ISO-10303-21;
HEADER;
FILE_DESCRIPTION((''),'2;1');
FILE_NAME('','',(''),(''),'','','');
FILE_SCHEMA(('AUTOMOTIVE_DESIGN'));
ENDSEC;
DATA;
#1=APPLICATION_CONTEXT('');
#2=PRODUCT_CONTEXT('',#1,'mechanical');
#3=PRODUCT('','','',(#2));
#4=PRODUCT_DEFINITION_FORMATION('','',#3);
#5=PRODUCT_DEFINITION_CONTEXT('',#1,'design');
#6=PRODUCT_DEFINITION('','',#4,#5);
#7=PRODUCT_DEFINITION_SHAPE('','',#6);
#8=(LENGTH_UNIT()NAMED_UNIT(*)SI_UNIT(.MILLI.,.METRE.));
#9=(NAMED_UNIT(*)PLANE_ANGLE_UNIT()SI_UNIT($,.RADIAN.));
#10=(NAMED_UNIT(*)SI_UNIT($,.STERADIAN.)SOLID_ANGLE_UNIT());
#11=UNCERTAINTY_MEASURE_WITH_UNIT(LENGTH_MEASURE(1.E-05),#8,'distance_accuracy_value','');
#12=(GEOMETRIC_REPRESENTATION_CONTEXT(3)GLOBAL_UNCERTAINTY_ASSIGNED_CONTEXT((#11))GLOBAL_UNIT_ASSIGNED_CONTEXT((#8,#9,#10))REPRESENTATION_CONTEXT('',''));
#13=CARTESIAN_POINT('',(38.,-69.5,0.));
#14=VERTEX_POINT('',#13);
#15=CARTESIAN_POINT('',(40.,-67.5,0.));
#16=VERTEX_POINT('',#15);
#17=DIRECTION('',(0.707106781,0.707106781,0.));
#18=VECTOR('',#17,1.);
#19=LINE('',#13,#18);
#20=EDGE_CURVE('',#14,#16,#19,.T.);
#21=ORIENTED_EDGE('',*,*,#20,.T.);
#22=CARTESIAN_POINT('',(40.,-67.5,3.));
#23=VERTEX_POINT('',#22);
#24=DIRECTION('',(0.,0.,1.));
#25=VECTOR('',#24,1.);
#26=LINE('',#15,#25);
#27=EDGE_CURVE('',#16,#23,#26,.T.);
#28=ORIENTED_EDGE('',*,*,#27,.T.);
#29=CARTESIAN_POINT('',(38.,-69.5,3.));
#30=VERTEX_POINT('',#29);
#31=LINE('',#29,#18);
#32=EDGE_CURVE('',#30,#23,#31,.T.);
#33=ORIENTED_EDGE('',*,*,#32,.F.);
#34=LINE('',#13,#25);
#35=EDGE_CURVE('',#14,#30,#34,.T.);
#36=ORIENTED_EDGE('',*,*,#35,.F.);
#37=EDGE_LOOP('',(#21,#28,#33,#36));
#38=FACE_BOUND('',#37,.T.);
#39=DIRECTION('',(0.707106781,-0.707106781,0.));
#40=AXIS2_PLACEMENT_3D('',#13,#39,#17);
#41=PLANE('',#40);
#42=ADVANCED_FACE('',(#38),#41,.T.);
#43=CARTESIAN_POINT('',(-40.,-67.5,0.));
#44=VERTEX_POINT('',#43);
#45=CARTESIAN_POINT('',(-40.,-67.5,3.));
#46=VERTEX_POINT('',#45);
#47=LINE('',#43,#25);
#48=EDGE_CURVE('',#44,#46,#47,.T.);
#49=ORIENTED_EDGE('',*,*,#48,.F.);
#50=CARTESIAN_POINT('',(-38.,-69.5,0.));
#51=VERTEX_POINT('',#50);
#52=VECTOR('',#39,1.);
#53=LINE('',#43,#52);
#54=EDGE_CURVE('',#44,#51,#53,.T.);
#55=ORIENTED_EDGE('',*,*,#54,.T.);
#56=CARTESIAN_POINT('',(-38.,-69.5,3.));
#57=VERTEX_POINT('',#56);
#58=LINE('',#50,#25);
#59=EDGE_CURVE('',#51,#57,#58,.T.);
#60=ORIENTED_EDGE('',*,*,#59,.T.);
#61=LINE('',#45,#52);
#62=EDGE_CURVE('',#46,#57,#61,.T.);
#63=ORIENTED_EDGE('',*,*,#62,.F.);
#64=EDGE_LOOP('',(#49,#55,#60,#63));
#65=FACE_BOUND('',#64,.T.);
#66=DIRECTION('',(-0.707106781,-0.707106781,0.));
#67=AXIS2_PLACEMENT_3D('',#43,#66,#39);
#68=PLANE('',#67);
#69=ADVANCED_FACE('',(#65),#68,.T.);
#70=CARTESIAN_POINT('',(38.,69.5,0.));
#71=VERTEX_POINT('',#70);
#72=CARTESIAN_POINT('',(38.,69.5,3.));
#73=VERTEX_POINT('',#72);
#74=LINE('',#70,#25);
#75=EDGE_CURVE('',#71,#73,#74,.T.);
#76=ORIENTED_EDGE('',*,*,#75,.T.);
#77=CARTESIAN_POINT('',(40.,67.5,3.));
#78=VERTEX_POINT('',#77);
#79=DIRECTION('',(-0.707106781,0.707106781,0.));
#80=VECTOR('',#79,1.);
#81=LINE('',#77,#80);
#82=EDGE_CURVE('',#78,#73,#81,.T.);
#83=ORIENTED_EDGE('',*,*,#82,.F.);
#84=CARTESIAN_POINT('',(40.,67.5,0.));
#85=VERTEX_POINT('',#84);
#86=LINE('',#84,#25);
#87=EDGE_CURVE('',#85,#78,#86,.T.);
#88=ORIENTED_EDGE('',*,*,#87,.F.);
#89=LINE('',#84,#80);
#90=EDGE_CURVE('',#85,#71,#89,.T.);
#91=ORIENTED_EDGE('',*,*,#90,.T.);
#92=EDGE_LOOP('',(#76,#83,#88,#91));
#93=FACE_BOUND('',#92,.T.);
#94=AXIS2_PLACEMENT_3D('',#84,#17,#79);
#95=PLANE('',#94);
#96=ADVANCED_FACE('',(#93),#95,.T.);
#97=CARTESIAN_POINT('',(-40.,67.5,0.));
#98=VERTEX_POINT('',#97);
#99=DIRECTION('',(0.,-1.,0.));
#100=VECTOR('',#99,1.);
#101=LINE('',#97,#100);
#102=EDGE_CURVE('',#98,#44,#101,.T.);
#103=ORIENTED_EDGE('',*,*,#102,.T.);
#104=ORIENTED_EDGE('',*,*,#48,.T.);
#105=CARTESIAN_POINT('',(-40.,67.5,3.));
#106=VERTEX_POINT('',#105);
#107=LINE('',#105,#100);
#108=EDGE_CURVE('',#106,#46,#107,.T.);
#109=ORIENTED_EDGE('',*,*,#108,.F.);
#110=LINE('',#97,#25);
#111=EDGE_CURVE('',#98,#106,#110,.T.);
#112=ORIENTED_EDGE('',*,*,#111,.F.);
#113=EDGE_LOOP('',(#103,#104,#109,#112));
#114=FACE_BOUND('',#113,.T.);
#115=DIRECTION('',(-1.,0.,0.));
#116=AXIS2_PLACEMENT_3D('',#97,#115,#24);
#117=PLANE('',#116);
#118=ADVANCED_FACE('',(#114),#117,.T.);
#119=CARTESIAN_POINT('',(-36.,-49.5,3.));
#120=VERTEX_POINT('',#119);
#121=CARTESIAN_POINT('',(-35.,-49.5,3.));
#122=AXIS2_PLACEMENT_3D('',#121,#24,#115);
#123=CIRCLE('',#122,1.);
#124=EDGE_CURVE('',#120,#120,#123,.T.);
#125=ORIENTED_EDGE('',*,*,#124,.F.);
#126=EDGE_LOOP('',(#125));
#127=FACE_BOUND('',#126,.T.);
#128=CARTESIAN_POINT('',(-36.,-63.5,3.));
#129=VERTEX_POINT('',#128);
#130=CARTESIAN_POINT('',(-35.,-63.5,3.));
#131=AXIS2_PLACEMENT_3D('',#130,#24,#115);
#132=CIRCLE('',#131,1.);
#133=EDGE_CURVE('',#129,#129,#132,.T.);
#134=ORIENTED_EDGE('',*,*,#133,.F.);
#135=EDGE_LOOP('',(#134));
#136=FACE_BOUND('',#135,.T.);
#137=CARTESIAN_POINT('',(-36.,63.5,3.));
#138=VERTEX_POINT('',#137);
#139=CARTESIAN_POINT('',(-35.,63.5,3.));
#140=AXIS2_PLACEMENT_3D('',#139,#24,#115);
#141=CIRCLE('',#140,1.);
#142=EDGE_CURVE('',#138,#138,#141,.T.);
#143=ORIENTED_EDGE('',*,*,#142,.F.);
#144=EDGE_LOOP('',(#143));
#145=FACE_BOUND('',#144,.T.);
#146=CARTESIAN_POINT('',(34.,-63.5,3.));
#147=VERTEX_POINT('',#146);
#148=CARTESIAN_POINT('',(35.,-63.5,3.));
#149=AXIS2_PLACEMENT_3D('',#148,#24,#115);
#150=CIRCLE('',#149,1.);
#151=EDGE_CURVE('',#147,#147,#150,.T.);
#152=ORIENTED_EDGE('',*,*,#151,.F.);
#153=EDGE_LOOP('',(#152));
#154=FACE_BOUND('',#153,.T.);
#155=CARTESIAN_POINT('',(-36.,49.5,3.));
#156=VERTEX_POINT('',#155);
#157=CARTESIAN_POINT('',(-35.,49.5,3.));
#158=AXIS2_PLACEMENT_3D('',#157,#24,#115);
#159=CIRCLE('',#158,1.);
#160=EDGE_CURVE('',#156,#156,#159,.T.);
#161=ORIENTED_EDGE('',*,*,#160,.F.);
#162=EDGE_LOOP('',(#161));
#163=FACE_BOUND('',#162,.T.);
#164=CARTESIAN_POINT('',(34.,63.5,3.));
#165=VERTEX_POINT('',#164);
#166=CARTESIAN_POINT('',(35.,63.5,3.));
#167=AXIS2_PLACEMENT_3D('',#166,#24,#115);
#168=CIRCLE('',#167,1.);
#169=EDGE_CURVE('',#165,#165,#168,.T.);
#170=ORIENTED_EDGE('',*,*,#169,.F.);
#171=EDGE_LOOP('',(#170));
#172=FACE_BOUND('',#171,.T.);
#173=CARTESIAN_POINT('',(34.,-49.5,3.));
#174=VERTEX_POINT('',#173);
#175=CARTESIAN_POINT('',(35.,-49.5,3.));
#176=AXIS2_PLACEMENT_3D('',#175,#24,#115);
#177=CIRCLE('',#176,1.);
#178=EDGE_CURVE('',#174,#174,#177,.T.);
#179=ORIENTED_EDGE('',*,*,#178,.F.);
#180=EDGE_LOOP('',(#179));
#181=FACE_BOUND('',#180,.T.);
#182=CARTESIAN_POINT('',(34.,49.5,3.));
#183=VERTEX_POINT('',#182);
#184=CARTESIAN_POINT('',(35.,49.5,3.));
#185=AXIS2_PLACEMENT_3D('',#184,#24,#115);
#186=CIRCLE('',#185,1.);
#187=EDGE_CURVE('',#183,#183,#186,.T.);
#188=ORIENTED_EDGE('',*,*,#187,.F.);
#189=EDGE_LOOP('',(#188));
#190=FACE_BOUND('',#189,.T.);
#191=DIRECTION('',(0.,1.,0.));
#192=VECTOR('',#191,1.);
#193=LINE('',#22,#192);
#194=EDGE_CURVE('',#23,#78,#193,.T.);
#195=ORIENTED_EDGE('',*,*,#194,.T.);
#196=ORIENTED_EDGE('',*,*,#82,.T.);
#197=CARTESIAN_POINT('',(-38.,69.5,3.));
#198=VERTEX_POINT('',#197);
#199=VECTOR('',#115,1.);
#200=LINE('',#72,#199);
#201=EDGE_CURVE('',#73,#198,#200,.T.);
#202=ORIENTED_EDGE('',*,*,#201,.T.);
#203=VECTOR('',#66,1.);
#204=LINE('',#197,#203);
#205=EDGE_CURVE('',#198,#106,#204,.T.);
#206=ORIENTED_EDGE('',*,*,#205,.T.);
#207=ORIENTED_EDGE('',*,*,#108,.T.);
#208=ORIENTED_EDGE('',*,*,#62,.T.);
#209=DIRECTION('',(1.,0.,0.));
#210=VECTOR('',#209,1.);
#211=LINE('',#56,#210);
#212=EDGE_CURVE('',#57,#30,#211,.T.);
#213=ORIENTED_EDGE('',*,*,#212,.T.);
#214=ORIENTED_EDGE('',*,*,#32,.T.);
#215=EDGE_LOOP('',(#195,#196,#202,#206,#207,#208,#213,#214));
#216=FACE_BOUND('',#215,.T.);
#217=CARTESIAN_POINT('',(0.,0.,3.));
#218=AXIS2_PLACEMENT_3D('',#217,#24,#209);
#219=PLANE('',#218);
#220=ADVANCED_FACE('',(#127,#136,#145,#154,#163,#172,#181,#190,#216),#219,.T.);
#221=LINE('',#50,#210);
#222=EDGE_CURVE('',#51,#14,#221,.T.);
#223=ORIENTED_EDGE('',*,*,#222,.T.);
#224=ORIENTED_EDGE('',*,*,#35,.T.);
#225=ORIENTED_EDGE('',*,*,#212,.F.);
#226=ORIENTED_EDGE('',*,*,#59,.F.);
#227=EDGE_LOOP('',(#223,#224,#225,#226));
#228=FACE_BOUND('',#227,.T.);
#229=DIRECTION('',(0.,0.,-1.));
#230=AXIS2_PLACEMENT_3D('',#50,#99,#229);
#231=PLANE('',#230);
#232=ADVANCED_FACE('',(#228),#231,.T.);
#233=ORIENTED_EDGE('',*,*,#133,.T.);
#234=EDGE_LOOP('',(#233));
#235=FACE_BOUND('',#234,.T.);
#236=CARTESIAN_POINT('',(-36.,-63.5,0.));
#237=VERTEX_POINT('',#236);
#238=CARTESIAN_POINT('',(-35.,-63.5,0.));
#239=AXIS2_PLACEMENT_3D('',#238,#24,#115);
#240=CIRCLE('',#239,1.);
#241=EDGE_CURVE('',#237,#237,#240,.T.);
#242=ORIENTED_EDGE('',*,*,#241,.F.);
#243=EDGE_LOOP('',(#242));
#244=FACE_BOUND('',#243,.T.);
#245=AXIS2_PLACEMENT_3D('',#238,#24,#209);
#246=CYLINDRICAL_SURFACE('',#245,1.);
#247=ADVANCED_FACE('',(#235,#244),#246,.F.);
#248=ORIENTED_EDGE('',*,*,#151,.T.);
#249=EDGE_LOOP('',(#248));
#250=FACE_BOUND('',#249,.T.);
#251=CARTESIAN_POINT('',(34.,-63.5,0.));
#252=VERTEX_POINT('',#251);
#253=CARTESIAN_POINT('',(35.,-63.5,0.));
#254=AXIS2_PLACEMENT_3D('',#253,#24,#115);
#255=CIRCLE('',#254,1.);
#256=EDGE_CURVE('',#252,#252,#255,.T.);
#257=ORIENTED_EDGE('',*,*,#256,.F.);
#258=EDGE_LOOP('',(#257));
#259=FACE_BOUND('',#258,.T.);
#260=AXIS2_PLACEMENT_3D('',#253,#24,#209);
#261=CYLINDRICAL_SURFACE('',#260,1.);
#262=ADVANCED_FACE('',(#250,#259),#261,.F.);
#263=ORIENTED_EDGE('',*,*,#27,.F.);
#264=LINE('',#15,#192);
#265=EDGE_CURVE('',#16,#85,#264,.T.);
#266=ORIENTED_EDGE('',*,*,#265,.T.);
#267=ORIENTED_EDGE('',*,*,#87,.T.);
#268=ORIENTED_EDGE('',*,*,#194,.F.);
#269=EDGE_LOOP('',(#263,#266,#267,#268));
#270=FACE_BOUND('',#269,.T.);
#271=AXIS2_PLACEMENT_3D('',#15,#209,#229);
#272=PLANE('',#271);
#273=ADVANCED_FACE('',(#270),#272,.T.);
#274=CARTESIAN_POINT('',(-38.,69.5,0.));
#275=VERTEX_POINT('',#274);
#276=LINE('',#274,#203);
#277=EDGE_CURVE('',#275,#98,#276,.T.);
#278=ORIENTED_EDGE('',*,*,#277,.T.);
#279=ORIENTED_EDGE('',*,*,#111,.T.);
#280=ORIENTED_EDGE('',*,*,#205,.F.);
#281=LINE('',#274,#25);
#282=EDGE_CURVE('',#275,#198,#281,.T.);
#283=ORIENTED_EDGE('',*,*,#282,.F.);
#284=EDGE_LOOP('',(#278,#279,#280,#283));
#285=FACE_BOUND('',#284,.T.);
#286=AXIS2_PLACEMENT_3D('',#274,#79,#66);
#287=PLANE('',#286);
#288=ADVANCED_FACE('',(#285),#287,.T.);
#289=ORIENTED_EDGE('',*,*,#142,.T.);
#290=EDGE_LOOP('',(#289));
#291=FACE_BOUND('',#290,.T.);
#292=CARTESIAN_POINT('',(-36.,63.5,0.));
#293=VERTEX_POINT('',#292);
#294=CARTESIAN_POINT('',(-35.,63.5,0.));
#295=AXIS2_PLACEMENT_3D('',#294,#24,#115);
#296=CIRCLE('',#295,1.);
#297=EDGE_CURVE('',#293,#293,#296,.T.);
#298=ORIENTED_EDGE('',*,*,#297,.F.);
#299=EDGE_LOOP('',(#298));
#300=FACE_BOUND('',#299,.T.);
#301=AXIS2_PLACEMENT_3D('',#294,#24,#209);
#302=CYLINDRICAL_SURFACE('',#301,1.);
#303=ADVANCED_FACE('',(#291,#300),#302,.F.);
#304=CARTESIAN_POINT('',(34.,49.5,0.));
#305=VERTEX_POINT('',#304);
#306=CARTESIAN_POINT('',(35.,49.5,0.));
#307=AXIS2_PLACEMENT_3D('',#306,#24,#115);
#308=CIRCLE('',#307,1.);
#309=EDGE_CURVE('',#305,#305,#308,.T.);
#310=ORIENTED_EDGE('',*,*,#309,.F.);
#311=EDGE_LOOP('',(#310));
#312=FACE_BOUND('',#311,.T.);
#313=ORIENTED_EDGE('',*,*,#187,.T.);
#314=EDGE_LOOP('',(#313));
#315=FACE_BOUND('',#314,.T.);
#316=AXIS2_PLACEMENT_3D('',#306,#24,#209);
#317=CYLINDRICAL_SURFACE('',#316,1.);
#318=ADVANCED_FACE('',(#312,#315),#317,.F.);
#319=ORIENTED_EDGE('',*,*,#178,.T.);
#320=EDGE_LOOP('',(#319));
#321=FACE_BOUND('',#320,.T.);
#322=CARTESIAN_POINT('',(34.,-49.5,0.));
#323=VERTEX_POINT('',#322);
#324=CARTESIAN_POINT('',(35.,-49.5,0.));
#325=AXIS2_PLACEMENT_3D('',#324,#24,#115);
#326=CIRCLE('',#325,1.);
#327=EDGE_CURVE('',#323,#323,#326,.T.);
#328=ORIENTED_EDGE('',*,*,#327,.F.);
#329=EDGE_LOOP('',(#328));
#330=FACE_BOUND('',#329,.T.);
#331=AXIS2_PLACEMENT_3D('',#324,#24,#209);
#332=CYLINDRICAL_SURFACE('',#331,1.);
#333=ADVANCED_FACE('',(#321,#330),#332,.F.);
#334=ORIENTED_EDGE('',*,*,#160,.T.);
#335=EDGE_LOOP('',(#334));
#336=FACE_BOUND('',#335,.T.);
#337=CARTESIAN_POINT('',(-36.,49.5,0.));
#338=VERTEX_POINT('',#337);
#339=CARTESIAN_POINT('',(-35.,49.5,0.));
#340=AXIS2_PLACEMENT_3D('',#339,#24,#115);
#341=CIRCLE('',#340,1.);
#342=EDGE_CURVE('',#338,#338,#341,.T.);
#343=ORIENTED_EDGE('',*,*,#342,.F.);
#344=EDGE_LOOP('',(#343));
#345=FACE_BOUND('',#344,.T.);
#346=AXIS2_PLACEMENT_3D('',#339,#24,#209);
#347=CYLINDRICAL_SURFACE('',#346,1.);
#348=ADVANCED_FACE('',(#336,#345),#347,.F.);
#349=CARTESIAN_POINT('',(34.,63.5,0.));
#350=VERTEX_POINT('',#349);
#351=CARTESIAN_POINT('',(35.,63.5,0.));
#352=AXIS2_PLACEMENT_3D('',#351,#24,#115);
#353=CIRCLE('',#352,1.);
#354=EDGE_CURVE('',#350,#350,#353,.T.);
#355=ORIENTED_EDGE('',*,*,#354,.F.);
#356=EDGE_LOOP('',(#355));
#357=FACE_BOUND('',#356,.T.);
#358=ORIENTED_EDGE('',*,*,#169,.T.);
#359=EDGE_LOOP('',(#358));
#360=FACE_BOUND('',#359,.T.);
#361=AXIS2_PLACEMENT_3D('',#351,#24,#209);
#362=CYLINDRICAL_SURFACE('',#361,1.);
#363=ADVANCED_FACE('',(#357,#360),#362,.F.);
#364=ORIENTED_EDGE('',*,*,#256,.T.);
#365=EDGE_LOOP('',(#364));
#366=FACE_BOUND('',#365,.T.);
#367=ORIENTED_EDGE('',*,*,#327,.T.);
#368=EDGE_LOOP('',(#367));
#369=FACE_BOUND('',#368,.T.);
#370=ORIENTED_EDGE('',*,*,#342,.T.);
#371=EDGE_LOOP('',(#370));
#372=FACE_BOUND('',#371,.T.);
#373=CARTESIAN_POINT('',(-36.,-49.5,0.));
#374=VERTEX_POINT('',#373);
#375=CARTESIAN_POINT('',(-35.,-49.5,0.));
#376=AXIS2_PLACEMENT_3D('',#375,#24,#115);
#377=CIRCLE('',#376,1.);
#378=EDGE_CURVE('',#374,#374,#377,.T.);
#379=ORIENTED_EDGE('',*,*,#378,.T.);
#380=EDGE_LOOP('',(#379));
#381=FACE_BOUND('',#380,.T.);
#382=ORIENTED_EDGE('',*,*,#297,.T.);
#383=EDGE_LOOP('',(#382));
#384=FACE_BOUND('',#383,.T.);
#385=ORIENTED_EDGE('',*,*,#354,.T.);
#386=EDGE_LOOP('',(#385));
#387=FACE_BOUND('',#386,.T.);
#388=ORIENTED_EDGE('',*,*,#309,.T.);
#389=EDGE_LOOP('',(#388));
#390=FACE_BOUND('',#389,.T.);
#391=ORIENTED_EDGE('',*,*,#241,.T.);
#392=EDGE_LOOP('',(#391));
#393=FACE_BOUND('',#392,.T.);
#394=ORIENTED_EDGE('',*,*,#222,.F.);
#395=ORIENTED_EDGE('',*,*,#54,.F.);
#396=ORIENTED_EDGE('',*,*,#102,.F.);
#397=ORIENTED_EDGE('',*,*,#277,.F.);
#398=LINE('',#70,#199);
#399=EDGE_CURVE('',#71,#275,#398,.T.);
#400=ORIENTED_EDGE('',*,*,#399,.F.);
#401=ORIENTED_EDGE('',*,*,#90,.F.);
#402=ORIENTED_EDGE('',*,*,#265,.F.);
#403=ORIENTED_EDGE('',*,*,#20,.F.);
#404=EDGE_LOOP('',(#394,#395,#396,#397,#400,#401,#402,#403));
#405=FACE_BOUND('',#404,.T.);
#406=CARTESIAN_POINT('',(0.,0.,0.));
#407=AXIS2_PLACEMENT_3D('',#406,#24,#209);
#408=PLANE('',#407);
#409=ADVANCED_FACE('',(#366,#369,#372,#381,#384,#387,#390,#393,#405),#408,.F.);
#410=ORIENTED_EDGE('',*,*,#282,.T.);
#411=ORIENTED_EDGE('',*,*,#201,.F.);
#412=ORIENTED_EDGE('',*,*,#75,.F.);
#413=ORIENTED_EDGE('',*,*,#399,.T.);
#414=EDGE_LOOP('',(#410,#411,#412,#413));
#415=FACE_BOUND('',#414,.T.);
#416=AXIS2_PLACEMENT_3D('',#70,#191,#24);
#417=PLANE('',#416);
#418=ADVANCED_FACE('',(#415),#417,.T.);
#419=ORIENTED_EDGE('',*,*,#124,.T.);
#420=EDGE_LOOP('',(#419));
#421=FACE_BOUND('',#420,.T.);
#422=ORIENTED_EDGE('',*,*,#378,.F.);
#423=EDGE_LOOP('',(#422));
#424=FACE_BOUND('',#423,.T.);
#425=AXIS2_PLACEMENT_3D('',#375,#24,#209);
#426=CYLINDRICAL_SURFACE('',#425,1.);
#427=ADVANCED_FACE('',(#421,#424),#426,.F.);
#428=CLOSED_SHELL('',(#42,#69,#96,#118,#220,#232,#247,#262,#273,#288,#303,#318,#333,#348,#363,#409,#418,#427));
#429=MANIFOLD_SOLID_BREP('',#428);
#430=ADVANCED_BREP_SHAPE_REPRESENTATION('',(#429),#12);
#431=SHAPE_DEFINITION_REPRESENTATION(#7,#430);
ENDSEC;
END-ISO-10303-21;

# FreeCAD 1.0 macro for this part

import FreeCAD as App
import Part
import Sketcher
from FreeCAD import Vector

doc = App.newDocument("Part")
body = doc.addObject("PartDesign::Body", "Body")

sketch1 = doc.addObject("Sketcher::SketchObject", "Sketch")
body.addObject(sketch1)
sketch1.AttachmentSupport = (doc.XY_Plane, [""])
sketch1.MapMode = "FlatFace"
sketch1.AttachmentOffset = App.Placement(Vector(0, 0, 3), App.Rotation())
sketch1.addGeometry([
    Part.LineSegment(Vector(-38, -69.5, 0), Vector(38, -69.5, 0)),
    Part.LineSegment(Vector(38, -69.5, 0), Vector(40, -67.5, 0)),
    Part.LineSegment(Vector(40, -67.5, 0), Vector(40, 67.5, 0)),
    Part.LineSegment(Vector(40, 67.5, 0), Vector(38, 69.5, 0)),
    Part.LineSegment(Vector(38, 69.5, 0), Vector(-38, 69.5, 0)),
    Part.LineSegment(Vector(-38, 69.5, 0), Vector(-40, 67.5, 0)),
    Part.LineSegment(Vector(-40, 67.5, 0), Vector(-40, -67.5, 0)),
    Part.LineSegment(Vector(-40, -67.5, 0), Vector(-38, -69.5, 0)),
    Part.Circle(Vector(-35, -63.5, 0), Vector(0, 0, 1), 1),
    Part.Circle(Vector(-35, -49.5, 0), Vector(0, 0, 1), 1),
    Part.Circle(Vector(35, -63.5, 0), Vector(0, 0, 1), 1),
    Part.Circle(Vector(35, -49.5, 0), Vector(0, 0, 1), 1),
    Part.Circle(Vector(-35, 49.5, 0), Vector(0, 0, 1), 1),
    Part.Circle(Vector(-35, 63.5, 0), Vector(0, 0, 1), 1),
    Part.Circle(Vector(35, 49.5, 0), Vector(0, 0, 1), 1),
    Part.Circle(Vector(35, 63.5, 0), Vector(0, 0, 1), 1),
], False)
sketch1.addConstraint([
    Sketcher.Constraint("Coincident", 0, 2, 1, 1),
    Sketcher.Constraint("Coincident", 1, 2, 2, 1),
    Sketcher.Constraint("Coincident", 2, 2, 3, 1),
    Sketcher.Constraint("Coincident", 3, 2, 4, 1),
    Sketcher.Constraint("Coincident", 4, 2, 5, 1),
    Sketcher.Constraint("Coincident", 5, 2, 6, 1),
    Sketcher.Constraint("Coincident", 6, 2, 7, 1),
    Sketcher.Constraint("Coincident", 7, 2, 0, 1),
    Sketcher.Constraint("Horizontal", 0),
    Sketcher.Constraint("Vertical", 2),
    Sketcher.Constraint("Horizontal", 4),
    Sketcher.Constraint("Vertical", 6),
    Sketcher.Constraint("Equal", 8, 9),
    Sketcher.Constraint("Equal", 9, 10),
    Sketcher.Constraint("Equal", 10, 11),
    Sketcher.Constraint("Equal", 11, 12),
    Sketcher.Constraint("Equal", 12, 13),
    Sketcher.Constraint("Equal", 13, 14),
    Sketcher.Constraint("Equal", 14, 15),
    Sketcher.Constraint("Symmetric", 11, 3, 12, 3, -1, 1),
    Sketcher.Constraint("Symmetric", 10, 3, 13, 3, -1, 1),
    Sketcher.Constraint("Symmetric", 9, 3, 14, 3, -1, 1),
    Sketcher.Constraint("Symmetric", 8, 3, 15, 3, -1, 1),
    Sketcher.Constraint("Symmetric", 0, 2, 4, 2, -1, 1),
    Sketcher.Constraint("Symmetric", 1, 2, 5, 2, -1, 1),
    Sketcher.Constraint("Symmetric", 8, 3, 10, 3, -2),
    Sketcher.Constraint("Symmetric", 9, 3, 11, 3, -2),
    Sketcher.Constraint("Perpendicular", 1, 3),
    Sketcher.Constraint("Perpendicular", 5, 7),
    Sketcher.Constraint("Horizontal", 2, 2, 5, 2),
    Sketcher.Constraint("Horizontal", 1, 2, 6, 2),
    Sketcher.Constraint("Vertical", 8, 3, 9, 3),
    Sketcher.Constraint("Vertical", 0, 2, 3, 2),
    Sketcher.Constraint("Diameter", 8, 2.0),
    Sketcher.Constraint("DistanceX", 0, 1, 0, 2, 76.0),
    Sketcher.Constraint("DistanceY", 2, 1, 2, 2, 135.0),
    Sketcher.Constraint("DistanceX", 8, 3, -1, 1, 35.0),
    Sketcher.Constraint("DistanceX", -1, 1, 1, 2, 40.0),
    Sketcher.Constraint("DistanceY", 8, 3, 9, 3, 14.0),
    Sketcher.Constraint("DistanceY", 9, 3, 12, 3, 99.0),
])
pad1 = doc.addObject("PartDesign::Pad", "Pad")
body.addObject(pad1)
pad1.Profile = sketch1
pad1.Length = 3
pad1.Reversed = True

doc.recompute()
